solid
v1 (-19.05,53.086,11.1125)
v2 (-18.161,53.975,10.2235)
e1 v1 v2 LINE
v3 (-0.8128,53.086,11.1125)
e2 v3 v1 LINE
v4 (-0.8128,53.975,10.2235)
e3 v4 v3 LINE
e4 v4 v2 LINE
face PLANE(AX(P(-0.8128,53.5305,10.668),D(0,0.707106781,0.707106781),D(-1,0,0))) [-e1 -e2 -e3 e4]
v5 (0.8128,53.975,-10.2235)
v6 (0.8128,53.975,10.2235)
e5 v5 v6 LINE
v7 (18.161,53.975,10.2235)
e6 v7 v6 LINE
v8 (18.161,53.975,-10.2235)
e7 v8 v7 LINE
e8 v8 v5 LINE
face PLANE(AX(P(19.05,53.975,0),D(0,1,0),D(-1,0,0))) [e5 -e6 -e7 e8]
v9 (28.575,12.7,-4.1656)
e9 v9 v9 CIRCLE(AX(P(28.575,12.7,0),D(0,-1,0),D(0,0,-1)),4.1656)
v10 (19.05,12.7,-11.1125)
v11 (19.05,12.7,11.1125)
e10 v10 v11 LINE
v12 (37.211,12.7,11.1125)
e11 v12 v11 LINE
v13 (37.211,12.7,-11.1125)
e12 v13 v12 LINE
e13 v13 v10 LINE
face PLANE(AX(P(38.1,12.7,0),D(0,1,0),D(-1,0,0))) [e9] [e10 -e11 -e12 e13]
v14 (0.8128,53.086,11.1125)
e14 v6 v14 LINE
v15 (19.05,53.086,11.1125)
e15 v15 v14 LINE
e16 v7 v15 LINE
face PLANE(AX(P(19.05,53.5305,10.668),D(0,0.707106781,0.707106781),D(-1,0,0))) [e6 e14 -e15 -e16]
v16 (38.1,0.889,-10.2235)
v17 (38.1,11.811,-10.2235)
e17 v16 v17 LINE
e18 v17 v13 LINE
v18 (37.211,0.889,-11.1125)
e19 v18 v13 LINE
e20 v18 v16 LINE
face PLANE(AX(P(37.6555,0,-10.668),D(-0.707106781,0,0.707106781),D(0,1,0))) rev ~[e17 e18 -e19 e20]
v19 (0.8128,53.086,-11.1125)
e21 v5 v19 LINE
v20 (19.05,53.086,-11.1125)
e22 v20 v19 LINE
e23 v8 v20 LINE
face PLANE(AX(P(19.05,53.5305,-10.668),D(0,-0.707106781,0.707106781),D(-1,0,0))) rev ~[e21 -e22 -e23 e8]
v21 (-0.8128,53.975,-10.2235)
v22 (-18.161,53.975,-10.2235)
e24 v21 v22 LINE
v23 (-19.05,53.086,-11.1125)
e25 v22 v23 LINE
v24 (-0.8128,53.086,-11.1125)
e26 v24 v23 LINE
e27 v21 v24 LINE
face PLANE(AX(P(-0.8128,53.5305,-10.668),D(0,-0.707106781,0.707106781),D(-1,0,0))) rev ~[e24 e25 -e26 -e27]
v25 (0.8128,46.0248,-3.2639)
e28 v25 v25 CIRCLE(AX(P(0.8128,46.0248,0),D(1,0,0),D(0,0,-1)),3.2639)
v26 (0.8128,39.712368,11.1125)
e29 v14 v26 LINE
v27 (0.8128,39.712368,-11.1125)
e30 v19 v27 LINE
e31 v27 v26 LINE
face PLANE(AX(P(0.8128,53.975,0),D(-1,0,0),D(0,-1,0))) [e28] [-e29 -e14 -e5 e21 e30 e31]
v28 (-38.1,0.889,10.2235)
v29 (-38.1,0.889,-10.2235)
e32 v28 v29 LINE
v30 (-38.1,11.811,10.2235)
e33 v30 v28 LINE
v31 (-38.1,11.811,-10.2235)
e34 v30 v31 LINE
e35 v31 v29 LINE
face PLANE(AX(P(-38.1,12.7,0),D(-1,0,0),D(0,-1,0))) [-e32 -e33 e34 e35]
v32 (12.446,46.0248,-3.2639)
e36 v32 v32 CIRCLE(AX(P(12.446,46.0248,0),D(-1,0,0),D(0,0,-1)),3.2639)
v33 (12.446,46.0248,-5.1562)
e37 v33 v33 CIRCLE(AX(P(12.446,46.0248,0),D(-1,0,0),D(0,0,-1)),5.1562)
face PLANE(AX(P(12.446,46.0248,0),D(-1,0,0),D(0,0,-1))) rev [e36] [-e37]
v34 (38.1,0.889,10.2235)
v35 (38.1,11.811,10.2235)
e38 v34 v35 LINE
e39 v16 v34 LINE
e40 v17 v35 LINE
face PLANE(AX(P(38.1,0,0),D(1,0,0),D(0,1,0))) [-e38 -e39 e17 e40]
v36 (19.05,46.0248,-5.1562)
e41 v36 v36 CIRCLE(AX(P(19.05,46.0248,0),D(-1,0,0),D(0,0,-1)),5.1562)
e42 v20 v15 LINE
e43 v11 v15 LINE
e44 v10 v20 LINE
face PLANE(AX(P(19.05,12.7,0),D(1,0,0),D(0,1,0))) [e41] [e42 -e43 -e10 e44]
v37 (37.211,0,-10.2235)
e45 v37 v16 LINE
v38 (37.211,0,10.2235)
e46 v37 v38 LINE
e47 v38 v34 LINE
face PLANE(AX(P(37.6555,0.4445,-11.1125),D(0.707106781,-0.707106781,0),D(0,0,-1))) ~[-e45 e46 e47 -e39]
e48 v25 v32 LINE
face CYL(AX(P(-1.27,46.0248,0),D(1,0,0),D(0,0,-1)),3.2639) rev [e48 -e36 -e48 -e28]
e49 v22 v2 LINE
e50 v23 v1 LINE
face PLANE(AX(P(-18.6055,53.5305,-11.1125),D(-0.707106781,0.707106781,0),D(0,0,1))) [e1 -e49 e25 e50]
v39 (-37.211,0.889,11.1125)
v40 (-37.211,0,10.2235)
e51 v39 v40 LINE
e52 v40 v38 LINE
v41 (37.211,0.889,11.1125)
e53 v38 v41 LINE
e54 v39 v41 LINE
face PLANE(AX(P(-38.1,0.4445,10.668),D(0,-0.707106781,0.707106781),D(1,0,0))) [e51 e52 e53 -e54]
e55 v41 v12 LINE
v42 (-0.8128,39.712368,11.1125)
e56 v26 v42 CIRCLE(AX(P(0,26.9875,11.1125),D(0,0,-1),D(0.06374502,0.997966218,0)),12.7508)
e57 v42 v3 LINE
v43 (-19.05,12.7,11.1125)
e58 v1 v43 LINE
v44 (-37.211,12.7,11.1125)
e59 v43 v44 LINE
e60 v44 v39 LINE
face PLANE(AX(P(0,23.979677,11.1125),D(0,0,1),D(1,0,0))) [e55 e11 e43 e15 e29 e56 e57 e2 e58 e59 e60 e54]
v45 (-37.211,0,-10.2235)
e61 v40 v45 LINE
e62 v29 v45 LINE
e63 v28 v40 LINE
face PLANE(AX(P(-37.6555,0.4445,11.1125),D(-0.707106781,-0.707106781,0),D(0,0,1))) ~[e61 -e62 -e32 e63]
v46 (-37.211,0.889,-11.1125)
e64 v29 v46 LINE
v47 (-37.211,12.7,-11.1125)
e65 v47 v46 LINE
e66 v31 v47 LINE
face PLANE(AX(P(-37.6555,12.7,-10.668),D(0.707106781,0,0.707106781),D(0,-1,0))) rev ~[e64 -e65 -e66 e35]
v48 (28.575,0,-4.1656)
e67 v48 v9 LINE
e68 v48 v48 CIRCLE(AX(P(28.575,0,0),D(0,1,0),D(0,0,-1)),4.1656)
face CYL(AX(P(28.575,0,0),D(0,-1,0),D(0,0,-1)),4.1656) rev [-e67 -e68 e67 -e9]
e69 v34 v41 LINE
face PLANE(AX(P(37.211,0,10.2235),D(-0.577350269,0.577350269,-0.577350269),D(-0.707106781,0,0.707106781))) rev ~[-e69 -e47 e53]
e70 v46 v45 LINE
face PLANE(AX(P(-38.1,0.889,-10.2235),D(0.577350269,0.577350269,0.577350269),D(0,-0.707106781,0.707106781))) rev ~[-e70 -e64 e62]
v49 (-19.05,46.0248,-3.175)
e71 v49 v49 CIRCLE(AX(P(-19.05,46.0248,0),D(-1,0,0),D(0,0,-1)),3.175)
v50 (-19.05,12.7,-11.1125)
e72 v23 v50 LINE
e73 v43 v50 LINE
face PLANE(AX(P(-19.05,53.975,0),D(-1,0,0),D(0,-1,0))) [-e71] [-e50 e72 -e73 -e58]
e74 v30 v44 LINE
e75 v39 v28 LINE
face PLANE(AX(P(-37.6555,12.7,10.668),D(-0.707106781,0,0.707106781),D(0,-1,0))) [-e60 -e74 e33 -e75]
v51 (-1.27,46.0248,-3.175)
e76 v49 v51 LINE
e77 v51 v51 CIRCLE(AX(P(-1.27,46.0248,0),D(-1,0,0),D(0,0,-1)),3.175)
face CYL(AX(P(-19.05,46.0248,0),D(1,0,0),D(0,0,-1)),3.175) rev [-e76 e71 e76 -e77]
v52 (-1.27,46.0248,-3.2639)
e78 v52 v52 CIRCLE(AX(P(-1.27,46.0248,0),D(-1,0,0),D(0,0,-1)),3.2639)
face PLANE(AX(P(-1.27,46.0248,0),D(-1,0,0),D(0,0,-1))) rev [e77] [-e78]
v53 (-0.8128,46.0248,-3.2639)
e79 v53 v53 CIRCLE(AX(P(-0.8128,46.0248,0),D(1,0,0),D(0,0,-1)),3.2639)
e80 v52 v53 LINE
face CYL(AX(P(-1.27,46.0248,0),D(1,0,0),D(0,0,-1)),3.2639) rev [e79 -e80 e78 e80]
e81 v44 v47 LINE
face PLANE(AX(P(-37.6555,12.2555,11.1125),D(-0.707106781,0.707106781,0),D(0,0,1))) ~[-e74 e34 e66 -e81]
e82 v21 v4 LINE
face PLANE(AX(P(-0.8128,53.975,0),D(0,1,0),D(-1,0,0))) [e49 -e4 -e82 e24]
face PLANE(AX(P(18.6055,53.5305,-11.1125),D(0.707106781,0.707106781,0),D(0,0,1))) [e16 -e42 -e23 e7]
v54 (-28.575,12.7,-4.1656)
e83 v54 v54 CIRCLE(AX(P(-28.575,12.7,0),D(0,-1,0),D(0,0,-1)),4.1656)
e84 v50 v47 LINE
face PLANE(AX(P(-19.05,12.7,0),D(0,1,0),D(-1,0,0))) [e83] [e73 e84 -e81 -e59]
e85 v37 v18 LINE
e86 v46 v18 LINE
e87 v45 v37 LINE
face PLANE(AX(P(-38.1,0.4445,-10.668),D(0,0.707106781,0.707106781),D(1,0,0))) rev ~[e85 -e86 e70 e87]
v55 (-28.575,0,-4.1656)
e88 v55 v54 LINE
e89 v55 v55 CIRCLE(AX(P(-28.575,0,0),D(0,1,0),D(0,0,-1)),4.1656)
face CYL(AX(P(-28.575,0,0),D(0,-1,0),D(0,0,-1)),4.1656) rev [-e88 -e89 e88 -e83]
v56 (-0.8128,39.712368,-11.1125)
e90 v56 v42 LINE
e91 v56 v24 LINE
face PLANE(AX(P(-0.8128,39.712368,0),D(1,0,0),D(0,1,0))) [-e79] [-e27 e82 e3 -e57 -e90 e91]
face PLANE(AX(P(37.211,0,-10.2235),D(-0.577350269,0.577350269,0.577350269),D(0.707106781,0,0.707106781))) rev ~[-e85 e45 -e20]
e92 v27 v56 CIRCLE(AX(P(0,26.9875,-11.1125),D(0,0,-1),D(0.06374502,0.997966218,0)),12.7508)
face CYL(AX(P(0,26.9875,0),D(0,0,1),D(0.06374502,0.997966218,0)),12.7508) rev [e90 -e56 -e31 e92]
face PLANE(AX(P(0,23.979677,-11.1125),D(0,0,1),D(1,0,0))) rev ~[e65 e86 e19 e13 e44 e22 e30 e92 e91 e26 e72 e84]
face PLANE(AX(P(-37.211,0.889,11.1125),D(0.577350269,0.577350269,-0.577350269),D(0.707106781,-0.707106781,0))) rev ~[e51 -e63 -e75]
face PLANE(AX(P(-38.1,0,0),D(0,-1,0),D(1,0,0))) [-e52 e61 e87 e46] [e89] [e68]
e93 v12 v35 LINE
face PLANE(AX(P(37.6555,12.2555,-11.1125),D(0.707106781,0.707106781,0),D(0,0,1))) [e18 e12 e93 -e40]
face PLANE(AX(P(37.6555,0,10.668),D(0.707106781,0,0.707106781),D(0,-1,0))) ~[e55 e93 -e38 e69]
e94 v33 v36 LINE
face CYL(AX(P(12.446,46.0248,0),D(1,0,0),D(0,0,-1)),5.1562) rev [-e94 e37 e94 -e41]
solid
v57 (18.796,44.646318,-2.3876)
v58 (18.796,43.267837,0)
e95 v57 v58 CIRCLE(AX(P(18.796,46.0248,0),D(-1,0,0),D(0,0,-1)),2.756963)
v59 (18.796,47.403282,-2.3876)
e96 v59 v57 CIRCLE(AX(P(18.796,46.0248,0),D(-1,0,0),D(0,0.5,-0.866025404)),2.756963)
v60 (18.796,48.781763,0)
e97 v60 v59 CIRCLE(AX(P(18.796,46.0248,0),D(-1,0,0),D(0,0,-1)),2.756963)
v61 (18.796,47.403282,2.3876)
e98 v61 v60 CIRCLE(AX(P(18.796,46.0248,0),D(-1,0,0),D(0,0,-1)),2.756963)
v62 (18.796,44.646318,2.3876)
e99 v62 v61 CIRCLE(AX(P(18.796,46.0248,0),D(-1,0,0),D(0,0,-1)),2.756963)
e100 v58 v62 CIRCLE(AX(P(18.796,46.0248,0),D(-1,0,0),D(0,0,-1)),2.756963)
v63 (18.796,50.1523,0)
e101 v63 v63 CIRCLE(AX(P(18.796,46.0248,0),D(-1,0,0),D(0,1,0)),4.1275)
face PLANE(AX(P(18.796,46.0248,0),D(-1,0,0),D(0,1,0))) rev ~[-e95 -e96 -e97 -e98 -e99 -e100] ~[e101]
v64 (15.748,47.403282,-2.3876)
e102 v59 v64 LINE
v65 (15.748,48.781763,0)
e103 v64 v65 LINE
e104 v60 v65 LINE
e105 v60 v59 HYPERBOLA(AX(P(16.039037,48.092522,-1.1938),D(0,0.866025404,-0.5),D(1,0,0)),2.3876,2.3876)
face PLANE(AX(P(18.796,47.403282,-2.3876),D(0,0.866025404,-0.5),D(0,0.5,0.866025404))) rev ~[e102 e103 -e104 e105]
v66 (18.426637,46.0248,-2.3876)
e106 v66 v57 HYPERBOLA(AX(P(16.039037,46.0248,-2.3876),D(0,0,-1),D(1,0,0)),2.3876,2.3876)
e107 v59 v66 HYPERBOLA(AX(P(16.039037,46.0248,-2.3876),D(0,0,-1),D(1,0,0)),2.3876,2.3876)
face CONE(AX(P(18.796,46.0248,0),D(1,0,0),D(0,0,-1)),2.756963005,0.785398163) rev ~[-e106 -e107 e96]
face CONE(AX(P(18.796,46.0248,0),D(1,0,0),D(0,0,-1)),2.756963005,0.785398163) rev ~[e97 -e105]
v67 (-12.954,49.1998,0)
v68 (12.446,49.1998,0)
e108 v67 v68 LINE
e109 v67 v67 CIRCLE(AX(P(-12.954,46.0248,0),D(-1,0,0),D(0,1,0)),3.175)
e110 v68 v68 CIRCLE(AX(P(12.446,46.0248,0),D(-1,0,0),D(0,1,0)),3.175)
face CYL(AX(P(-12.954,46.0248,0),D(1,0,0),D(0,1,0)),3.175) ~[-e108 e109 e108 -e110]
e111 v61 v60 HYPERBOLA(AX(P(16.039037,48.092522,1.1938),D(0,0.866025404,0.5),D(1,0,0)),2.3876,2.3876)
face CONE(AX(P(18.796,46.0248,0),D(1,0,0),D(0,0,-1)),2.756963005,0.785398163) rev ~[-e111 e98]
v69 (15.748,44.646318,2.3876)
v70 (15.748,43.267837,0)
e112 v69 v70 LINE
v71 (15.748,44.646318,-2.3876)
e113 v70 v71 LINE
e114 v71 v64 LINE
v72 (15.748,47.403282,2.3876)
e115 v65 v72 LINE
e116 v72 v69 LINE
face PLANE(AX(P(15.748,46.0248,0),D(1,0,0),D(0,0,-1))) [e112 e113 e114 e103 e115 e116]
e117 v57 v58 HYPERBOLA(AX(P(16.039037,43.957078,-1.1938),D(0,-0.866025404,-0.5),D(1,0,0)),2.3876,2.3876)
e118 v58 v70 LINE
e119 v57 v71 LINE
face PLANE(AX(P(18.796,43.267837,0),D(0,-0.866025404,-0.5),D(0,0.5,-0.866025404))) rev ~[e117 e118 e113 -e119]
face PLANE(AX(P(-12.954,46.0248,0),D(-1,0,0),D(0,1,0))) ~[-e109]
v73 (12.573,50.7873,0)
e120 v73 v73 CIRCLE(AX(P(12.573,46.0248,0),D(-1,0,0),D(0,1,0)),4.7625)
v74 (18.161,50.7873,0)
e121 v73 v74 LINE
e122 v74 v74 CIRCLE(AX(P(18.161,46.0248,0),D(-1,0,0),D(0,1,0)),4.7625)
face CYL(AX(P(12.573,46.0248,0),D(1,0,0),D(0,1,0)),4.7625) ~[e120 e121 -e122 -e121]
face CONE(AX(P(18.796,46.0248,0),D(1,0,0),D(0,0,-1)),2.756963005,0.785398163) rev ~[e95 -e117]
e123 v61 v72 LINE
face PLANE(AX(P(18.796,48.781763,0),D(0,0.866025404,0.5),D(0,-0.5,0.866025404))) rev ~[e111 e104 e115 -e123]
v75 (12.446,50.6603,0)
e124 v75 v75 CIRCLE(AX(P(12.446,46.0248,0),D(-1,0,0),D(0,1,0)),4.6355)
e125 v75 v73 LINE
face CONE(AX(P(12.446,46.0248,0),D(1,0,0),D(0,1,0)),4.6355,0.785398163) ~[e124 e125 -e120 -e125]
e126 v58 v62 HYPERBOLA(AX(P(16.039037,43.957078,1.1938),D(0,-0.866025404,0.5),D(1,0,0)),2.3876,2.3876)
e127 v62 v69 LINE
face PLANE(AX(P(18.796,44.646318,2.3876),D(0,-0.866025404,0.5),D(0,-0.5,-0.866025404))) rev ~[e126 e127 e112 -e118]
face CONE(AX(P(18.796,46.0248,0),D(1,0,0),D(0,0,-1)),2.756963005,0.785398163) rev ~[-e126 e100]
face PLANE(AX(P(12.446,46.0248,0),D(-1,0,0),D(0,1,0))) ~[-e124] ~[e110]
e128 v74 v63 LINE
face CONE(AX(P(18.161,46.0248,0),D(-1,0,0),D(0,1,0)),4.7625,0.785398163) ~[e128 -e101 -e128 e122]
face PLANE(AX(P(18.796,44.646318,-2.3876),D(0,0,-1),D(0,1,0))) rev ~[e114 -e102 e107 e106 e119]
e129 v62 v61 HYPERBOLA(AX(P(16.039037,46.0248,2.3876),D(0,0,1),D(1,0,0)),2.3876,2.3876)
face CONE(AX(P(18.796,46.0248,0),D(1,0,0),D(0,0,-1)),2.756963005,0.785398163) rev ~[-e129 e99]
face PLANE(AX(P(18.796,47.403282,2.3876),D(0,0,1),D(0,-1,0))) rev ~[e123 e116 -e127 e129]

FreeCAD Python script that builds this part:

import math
import FreeCAD as App
import Part
import Sketcher

V = App.Vector
Q = App.Units.Quantity


def edges_at(feature, points):
    """Names of the edges that pass closest to the given points."""
    edges = feature.Shape.Edges
    near = lambda p: min(range(len(edges)), key=lambda i: edges[i].distToShape(Part.Vertex(*p))[0])
    return sorted({f"Edge{near(p) + 1}" for p in points})


def add_polygon(sketch, points):
    """Adds a closed chain of lines whose ends are joined by coincident constraints."""
    first, n = sketch.GeometryCount, len(points)
    for a, b in zip(points, points[1:] + points[:1]):
        sketch.addGeometry(Part.LineSegment(App.Vector(*a, 0), App.Vector(*b, 0)), False)
    for i in range(n):
        sketch.addConstraint(Sketcher.Constraint("Coincident", first + i, 2, first + (i + 1) % n, 1))

doc = App.newDocument("Part")
body = doc.addObject("PartDesign::Body", "Body")

# Sketch on XY plane
sketch1 = doc.addObject("Sketcher::SketchObject", "Sketch")
body.addObject(sketch1)
sketch1.AttachmentSupport = (doc.XY_Plane, [""])
sketch1.MapMode = "FlatFace"
sketch1.addGeometry([
    Part.LineSegment(V(-38.1, 0, 0), V(38.1, 0, 0)),  # 0
    Part.LineSegment(V(38.1, 0, 0), V(38.1, 12.7, 0)),  # 1
    Part.LineSegment(V(38.1, 12.7, 0), V(19.1, 12.7, 0)),  # 2
    Part.LineSegment(V(19.1, 12.7, 0), V(19.1, 54, 0)),  # 3
    Part.LineSegment(V(19.1, 54, 0), V(0.8, 54, 0)),  # 4
    Part.LineSegment(V(0.8, 54, 0), V(0.8, 39.7, 0)),  # 5
    Part.ArcOfCircle(Part.Circle(V(0, 27, 0), V(0, 0, 1), 12.8), math.radians(94), math.radians(446)),  # 6
    Part.LineSegment(V(-0.8, 39.7, 0), V(-0.8, 54, 0)),  # 7
    Part.LineSegment(V(-0.8, 54, 0), V(-19.1, 54, 0)),  # 8
    Part.LineSegment(V(-19.1, 54, 0), V(-19.1, 12.7, 0)),  # 9
    Part.LineSegment(V(-19.1, 12.7, 0), V(-38.1, 12.7, 0)),  # 10
    Part.LineSegment(V(-38.1, 12.7, 0), V(-38.1, 0, 0)),  # 11
], False)
sketch1.addConstraint([
    Sketcher.Constraint("Coincident", 0, 2, 1, 1),
    Sketcher.Constraint("Coincident", 1, 2, 2, 1),
    Sketcher.Constraint("Coincident", 2, 2, 3, 1),
    Sketcher.Constraint("Coincident", 3, 2, 4, 1),
    Sketcher.Constraint("Coincident", 4, 2, 5, 1),
    Sketcher.Constraint("Coincident", 5, 2, 6, 2),
    Sketcher.Constraint("Coincident", 6, 1, 7, 1),
    Sketcher.Constraint("Coincident", 7, 2, 8, 1),
    Sketcher.Constraint("Coincident", 8, 2, 9, 1),
    Sketcher.Constraint("Coincident", 9, 2, 10, 1),
    Sketcher.Constraint("Coincident", 10, 2, 11, 1),
    Sketcher.Constraint("Coincident", 11, 2, 0, 1),
    Sketcher.Constraint("Horizontal", 0),
    Sketcher.Constraint("Vertical", 1),
    Sketcher.Constraint("Horizontal", 2),
    Sketcher.Constraint("Vertical", 3),
    Sketcher.Constraint("Horizontal", 4),
    Sketcher.Constraint("Vertical", 5),
    Sketcher.Constraint("Vertical", 7),
    Sketcher.Constraint("Horizontal", 8),
    Sketcher.Constraint("Vertical", 9),
    Sketcher.Constraint("Horizontal", 10),
    Sketcher.Constraint("Vertical", 11),
    Sketcher.Constraint("Symmetric", 0, 2, 11, 2, -1, 1),
    Sketcher.Constraint("Symmetric", 5, 2, 6, 1, -2),
    Sketcher.Constraint("Symmetric", 3, 2, 8, 2, -2),
    Sketcher.Constraint("Horizontal", 2, 2, 9, 2),
    Sketcher.Constraint("DistanceX", 0, 1, 0, 2, Q("3 in")),
    Sketcher.Constraint("DistanceY", 1, 1, 1, 2, Q("0.5 in")),
    Sketcher.Constraint("Radius", 6, Q("0.502 in")),
    Sketcher.Constraint("DistanceX", 2, 2, 2, 1, Q("0.75 in")),
    Sketcher.Constraint("DistanceX", 4, 2, 4, 1, Q("0.718 in")),
    Sketcher.Constraint("DistanceY", 3, 1, 3, 2, Q("1.625 in")),
    Sketcher.Constraint("DistanceY", -1, 1, 6, 3, Q("1.0625 in")),
])
pad1 = doc.addObject("PartDesign::Pad", "Pad")
body.addObject(pad1)
pad1.Profile = sketch1
pad1.Length = Q("0.875 in")
pad1.Midplane = True
doc.recompute()

chamfer = doc.addObject("PartDesign::Chamfer", "Chamfer")
body.addObject(chamfer)
chamfer.Base = (pad1, edges_at(pad1, [
    (38.1, 6.35, 11.113),
    (-9.931, 53.975, -11.113),
    (9.931, 53.975, -11.113),
    (38.1, 6.35, -11.113),
    (0, 0, -11.113),
    (-38.1, 6.35, -11.113),
    (9.931, 53.975, 11.113),
    (-38.1, 12.7, 0),
    (-19.05, 53.975, 0),
    (19.05, 53.975, 0),
    (38.1, 12.7, 0),
    (38.1, 0, 0),
    (-38.1, 0, 0),
    (-9.931, 53.975, 11.113),
    (-38.1, 6.35, 11.113),
    (0, 0, 11.113),
]))
chamfer.Size = Q("0.035 in")

# Sketch on XZ plane
sketch2 = doc.addObject("Sketcher::SketchObject", "Sketch001")
body.addObject(sketch2)
sketch2.AttachmentSupport = (doc.XZ_Plane, [""])
sketch2.MapMode = "FlatFace"
sketch2.addGeometry([
    Part.Circle(V(-28.6, 0, 0), V(0, 0, 1), 4.2),
    Part.Circle(V(28.6, 0, 0), V(0, 0, 1), 4.2),
], False)
sketch2.addConstraint([
    Sketcher.Constraint("Equal", 0, 1),
    Sketcher.Constraint("Symmetric", 0, 3, 1, 3, -1, 1),
    Sketcher.Constraint("PointOnObject", 0, 3, -1),
    Sketcher.Constraint("Diameter", 0, Q("0.328 in")),
    Sketcher.Constraint("DistanceX", 0, 3, 1, 3, Q("2.25 in")),
])
pocket1 = doc.addObject("PartDesign::Pocket", "Pocket")
body.addObject(pocket1)
pocket1.Profile = sketch2
pocket1.Type = "ThroughAll"

# Sketch on XY plane
sketch3 = doc.addObject("Sketcher::SketchObject", "Sketch002")
body.addObject(sketch3)
sketch3.AttachmentSupport = (doc.XY_Plane, [""])
sketch3.MapMode = "FlatFace"
add_polygon(sketch3, [(-19.05, 49.2), (-19.05, 46.02), (19.05, 46.02), (19.05, 51.18), (12.45, 51.18), (12.45, 49.29), (-1.27, 49.29), (-1.27, 49.2)])  # lines 0-7
sketch3.addGeometry(Part.LineSegment(V(19.05, 46.02, 0), V(-19.05, 46.02, 0)), True)  # axis
sketch3.addConstraint([
    Sketcher.Constraint("Vertical", 0),
    Sketcher.Constraint("Horizontal", 1),
    Sketcher.Constraint("Vertical", 2),
    Sketcher.Constraint("Horizontal", 3),
    Sketcher.Constraint("Vertical", 4),
    Sketcher.Constraint("Horizontal", 5),
    Sketcher.Constraint("Vertical", 6),
    Sketcher.Constraint("Horizontal", 7),
    Sketcher.Constraint("Horizontal", 8),
    Sketcher.Constraint("Coincident", 8, 1, 1, 2),
    Sketcher.Constraint("Vertical", 7, 2, 8, 2),
    Sketcher.Constraint("DistanceX", 1, 1, 1, 2, Q("1.5 in")),
    Sketcher.Constraint("DistanceX", 7, 2, 7, 1, Q("0.7 in")),
    Sketcher.Constraint("DistanceX", 3, 2, 3, 1, Q("0.26 in")),
    Sketcher.Constraint("DistanceY", 0, 2, 0, 1, Q("0.125 in")),
    Sketcher.Constraint("DistanceY", 2, 1, 2, 2, Q("0.203 in")),
    Sketcher.Constraint("DistanceX", 0, 2, -1, 1, Q("0.75 in")),
    Sketcher.Constraint("DistanceY", 4, 2, 4, 1, Q("0.0745 in")),
    Sketcher.Constraint("DistanceY", -1, 1, 0, 2, Q("1.812 in")),
])
groove = doc.addObject("PartDesign::Groove", "Groove")
body.addObject(groove)
groove.Profile = sketch3
groove.ReferenceAxis = (sketch3, ["Axis0"])
groove.Angle = 360
body2 = doc.addObject("PartDesign::Body", "Body001")

# Sketch on XY plane
sketch4 = doc.addObject("Sketcher::SketchObject", "Sketch003")
body2.addObject(sketch4)
sketch4.AttachmentSupport = (doc.getObject("XY_Plane001"), [""])
sketch4.MapMode = "FlatFace"
add_polygon(sketch4, [(-12.95, 49.2), (-12.95, 46.02), (18.8, 46.02), (18.8, 50.15), (18.16, 50.79), (12.57, 50.79), (12.45, 50.66), (12.45, 49.2)])  # lines 0-7
sketch4.addGeometry(Part.LineSegment(V(18.8, 46.02, 0), V(-12.95, 46.02, 0)), True)  # axis
sketch4.addConstraint([
    Sketcher.Constraint("Vertical", 0),
    Sketcher.Constraint("Horizontal", 1),
    Sketcher.Constraint("Vertical", 2),
    Sketcher.Constraint("Horizontal", 4),
    Sketcher.Constraint("Vertical", 6),
    Sketcher.Constraint("Horizontal", 7),
    Sketcher.Constraint("Horizontal", 8),
    Sketcher.Constraint("Coincident", 8, 1, 1, 2),
    Sketcher.Constraint("Perpendicular", 3, 5),
    Sketcher.Constraint("Vertical", 7, 2, 8, 2),
    Sketcher.Constraint("DistanceX", 7, 2, 7, 1, Q("1 in")),
    Sketcher.Constraint("Angle", 3, Q("135 deg")),
    Sketcher.Constraint("DistanceX", 1, 1, 1, 2, Q("1.25 in")),
    Sketcher.Constraint("DistanceX", 4, 2, 4, 1, Q("0.22 in")),
    Sketcher.Constraint("DistanceY", 0, 2, 0, 1, Q("0.125 in")),
    Sketcher.Constraint("DistanceX", 0, 2, -1, 1, Q("0.51 in")),
    Sketcher.Constraint("DistanceY", 2, 2, 5, 2, Q("0.02 in")),
    Sketcher.Constraint("DistanceY", 2, 1, 2, 2, Q("0.1625 in")),
    Sketcher.Constraint("DistanceY", -1, 1, 0, 2, Q("1.812 in")),
])
revolution = doc.addObject("PartDesign::Revolution", "Revolution")
body2.addObject(revolution)
revolution.Profile = sketch4
revolution.ReferenceAxis = (sketch4, ["Axis0"])
revolution.Angle = 360

# Sketch on YZ plane
sketch5 = doc.addObject("Sketcher::SketchObject", "Sketch004")
body2.addObject(sketch5)
sketch5.AttachmentSupport = (doc.getObject("YZ_Plane001"), [""])
sketch5.MapMode = "FlatFace"
sketch5.AttachmentOffset = App.Placement(V(0, 0, 0.74 * 25.4), App.Rotation())
add_polygon(sketch5, [(48.8, 0), (47.4, 2.4), (44.6, 2.4), (43.3, 0), (44.6, -2.4), (47.4, -2.4)])  # lines 0-5
sketch5.addConstraint([
    Sketcher.Constraint("Horizontal", 1),
    Sketcher.Constraint("Horizontal", 4),
    Sketcher.Constraint("Symmetric", 1, 2, 3, 2, -1),
    Sketcher.Constraint("PointOnObject", 2, 2, -1),
    Sketcher.Constraint("PointOnObject", 5, 2, -1),
    Sketcher.Constraint("Parallel", 0, 3),
    Sketcher.Constraint("Parallel", 2, 5),
    Sketcher.Constraint("Angle", 0, Q("120 deg")),
    Sketcher.Constraint("DistanceY", -1, 1, 0, 2, Q("0.094 in")),
    Sketcher.Constraint("DistanceX", 1, 2, 1, 1, Q("2.756963 mm")),
    Sketcher.Constraint("DistanceX", -1, 1, 0, 2, Q("47.403282 mm")),
])
pocket2 = doc.addObject("PartDesign::Pocket", "Pocket001")
body2.addObject(pocket2)
pocket2.Profile = sketch5
pocket2.Length = Q("0.12 in")

# Sketch on XZ plane
sketch6 = doc.addObject("Sketcher::SketchObject", "Sketch005")
body2.addObject(sketch6)
sketch6.AttachmentSupport = (doc.getObject("XZ_Plane001"), [""])
sketch6.MapMode = "FlatFace"
sketch6.AttachmentOffset = App.Placement(V(0, 0, -1.812 * 25.4), App.Rotation())
add_polygon(sketch6, [(18.8, 0), (18.8, -2.8), (16, 0)])  # lines 0-2
sketch6.addConstraint([
    Sketcher.Constraint("Vertical", 0),
    Sketcher.Constraint("Horizontal", 2),
    Sketcher.Constraint("PointOnObject", 1, 2, -1),
    Sketcher.Constraint("Equal", 2, 0),
    Sketcher.Constraint("DistanceX", -1, 1, 0, 2, Q("0.74 in")),
    Sketcher.Constraint("DistanceX", 2, 1, 2, 2, Q("2.756963 mm")),
])
groove2 = doc.addObject("PartDesign::Groove", "Groove001")
body2.addObject(groove2)
groove2.Profile = sketch6
groove2.ReferenceAxis = (sketch6, ["H_Axis"])
groove2.Angle = 360

doc.recompute()
